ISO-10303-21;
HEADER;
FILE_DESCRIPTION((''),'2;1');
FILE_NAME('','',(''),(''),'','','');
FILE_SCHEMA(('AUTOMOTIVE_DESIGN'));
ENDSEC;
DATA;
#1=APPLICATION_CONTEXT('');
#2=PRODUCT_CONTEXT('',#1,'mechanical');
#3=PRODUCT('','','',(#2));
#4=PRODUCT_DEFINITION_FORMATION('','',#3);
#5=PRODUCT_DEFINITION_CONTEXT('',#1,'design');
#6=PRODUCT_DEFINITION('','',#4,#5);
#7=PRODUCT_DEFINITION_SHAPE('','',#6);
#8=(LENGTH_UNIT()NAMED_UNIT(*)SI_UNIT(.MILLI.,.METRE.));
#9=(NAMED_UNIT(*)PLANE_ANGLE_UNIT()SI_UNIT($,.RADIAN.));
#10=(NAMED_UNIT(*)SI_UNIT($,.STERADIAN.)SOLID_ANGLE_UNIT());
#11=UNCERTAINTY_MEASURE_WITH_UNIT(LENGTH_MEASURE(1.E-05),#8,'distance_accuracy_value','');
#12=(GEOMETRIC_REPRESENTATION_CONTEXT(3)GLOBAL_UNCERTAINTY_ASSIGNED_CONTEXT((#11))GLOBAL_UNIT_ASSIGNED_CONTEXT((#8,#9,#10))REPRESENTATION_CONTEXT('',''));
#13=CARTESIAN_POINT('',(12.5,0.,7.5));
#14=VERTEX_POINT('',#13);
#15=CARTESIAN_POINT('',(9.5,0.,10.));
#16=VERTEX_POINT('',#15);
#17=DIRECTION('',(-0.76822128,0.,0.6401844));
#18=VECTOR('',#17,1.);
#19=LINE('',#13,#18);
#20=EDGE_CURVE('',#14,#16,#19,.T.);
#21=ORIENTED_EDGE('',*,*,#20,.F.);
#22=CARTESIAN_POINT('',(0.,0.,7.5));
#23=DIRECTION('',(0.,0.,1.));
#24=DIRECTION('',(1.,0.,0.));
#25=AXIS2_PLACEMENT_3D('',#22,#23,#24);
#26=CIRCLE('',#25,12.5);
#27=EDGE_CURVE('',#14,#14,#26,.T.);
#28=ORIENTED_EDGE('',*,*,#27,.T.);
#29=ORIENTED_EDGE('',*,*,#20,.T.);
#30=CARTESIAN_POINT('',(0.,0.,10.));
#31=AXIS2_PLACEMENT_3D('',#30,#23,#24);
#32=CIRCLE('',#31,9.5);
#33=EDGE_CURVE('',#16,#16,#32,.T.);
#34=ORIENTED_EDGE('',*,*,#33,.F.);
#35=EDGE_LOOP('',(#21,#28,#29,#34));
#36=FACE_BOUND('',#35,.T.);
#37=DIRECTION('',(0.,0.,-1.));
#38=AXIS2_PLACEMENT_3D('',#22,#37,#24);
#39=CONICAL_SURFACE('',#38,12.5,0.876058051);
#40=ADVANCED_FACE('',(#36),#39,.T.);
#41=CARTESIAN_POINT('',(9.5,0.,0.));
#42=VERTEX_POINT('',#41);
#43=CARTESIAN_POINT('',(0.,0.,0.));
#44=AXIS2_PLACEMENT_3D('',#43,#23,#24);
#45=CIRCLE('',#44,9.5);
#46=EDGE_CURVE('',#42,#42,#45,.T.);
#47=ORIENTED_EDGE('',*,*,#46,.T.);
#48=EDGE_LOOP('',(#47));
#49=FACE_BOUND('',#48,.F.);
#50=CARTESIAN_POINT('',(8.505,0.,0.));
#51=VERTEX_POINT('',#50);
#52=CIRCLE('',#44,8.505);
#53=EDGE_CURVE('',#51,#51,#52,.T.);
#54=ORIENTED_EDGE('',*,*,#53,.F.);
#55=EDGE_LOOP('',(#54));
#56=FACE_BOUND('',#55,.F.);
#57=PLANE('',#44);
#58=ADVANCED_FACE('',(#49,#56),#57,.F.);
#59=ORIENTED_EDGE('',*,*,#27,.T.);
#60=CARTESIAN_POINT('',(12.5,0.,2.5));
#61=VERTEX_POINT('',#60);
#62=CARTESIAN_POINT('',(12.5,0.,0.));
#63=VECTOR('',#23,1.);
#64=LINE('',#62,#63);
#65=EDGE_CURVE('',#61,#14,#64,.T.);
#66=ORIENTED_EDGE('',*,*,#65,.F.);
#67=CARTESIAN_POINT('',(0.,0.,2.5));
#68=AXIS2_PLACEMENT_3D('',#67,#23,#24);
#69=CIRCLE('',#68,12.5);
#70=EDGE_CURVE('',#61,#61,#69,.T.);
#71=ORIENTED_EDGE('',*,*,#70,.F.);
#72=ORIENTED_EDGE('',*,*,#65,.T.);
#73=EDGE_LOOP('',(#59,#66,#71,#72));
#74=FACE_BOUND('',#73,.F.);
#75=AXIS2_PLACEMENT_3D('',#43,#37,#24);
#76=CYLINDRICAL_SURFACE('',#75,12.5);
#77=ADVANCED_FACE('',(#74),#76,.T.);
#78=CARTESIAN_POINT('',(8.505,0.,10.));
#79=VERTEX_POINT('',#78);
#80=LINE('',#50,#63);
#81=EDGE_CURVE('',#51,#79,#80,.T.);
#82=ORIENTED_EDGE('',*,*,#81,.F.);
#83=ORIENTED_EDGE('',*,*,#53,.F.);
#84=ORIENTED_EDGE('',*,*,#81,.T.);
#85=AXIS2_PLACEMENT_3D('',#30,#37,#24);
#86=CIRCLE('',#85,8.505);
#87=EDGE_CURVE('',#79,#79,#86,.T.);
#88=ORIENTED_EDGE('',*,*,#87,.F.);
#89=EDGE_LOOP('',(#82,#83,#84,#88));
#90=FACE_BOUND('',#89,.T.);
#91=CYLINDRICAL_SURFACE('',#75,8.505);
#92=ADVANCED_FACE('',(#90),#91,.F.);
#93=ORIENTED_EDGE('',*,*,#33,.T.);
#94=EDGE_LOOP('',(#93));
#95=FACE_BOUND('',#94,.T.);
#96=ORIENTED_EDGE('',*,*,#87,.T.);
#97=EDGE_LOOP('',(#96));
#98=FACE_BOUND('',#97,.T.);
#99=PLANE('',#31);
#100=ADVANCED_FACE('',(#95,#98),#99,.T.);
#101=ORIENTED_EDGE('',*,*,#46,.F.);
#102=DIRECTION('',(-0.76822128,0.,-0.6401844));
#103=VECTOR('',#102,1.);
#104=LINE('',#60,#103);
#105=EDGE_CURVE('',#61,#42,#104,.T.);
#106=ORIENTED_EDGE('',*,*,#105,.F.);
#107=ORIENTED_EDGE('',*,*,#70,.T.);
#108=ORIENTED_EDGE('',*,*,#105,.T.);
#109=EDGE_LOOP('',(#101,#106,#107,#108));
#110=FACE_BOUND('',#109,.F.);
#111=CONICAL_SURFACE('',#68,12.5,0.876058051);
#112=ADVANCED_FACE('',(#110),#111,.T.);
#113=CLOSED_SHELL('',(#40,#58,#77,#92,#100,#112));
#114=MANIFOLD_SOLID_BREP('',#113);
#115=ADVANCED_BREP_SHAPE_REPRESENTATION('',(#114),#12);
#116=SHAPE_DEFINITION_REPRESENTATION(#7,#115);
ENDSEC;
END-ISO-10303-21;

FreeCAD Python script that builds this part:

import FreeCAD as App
import Part
import Sketcher

V = App.Vector
Q = App.Units.Quantity


def edges_at(feature, points):
    """Names of the edges that pass closest to the given points."""
    edges = feature.Shape.Edges
    near = lambda p: min(range(len(edges)), key=lambda i: edges[i].distToShape(Part.Vertex(*p))[0])
    return sorted({f"Edge{near(p) + 1}" for p in points})

doc = App.newDocument("Part")
body = doc.addObject("PartDesign::Body", "Body")

# Sketch on XY plane
sketch1 = body.newObject("Sketcher::SketchObject", "Sketch")
sketch1.AttachmentSupport = (doc.getObject("XY_Plane"), [""])
sketch1.MapMode = "FlatFace"
sketch1.addGeometry(Part.Circle(V(0, 0, 0), V(0, 0, 1), 12), False)
sketch1.addConstraint(Sketcher.Constraint("Coincident", 0, 3, -1, 1))
sketch1.addConstraint(Sketcher.Constraint("Diameter", 0, Q("25 mm")))
pad1 = body.newObject("PartDesign::Pad", "Pad")
pad1.Profile = sketch1
pad1.Length = 10

# Sketch on XY plane
sketch2 = body.newObject("Sketcher::SketchObject", "Sketch001")
sketch2.AttachmentSupport = (doc.getObject("XY_Plane"), [""])
sketch2.MapMode = "FlatFace"
sketch2.addGeometry(Part.Circle(V(0, 0, 0), V(0, 0, 1), 9), False)
sketch2.addConstraint(Sketcher.Constraint("Coincident", 0, 3, -1, 1))
sketch2.addConstraint(Sketcher.Constraint("Diameter", 0, Q("17.01 mm")))
pocket1 = body.newObject("PartDesign::Pocket", "Pocket")
pocket1.Profile = sketch2
pocket1.Length = 27.2
pocket1.Reversed = True
doc.recompute()

chamfer = body.newObject("PartDesign::Chamfer", "Chamfer")
chamfer.Base = (pocket1, edges_at(pocket1, [(12.5, 0, 5), (-12.5, 0, 0), (-12.5, 0, 10)]))
chamfer.ChamferType = "Two distances"
chamfer.Size = 2.5
chamfer.Size2 = 3

doc.recompute()
